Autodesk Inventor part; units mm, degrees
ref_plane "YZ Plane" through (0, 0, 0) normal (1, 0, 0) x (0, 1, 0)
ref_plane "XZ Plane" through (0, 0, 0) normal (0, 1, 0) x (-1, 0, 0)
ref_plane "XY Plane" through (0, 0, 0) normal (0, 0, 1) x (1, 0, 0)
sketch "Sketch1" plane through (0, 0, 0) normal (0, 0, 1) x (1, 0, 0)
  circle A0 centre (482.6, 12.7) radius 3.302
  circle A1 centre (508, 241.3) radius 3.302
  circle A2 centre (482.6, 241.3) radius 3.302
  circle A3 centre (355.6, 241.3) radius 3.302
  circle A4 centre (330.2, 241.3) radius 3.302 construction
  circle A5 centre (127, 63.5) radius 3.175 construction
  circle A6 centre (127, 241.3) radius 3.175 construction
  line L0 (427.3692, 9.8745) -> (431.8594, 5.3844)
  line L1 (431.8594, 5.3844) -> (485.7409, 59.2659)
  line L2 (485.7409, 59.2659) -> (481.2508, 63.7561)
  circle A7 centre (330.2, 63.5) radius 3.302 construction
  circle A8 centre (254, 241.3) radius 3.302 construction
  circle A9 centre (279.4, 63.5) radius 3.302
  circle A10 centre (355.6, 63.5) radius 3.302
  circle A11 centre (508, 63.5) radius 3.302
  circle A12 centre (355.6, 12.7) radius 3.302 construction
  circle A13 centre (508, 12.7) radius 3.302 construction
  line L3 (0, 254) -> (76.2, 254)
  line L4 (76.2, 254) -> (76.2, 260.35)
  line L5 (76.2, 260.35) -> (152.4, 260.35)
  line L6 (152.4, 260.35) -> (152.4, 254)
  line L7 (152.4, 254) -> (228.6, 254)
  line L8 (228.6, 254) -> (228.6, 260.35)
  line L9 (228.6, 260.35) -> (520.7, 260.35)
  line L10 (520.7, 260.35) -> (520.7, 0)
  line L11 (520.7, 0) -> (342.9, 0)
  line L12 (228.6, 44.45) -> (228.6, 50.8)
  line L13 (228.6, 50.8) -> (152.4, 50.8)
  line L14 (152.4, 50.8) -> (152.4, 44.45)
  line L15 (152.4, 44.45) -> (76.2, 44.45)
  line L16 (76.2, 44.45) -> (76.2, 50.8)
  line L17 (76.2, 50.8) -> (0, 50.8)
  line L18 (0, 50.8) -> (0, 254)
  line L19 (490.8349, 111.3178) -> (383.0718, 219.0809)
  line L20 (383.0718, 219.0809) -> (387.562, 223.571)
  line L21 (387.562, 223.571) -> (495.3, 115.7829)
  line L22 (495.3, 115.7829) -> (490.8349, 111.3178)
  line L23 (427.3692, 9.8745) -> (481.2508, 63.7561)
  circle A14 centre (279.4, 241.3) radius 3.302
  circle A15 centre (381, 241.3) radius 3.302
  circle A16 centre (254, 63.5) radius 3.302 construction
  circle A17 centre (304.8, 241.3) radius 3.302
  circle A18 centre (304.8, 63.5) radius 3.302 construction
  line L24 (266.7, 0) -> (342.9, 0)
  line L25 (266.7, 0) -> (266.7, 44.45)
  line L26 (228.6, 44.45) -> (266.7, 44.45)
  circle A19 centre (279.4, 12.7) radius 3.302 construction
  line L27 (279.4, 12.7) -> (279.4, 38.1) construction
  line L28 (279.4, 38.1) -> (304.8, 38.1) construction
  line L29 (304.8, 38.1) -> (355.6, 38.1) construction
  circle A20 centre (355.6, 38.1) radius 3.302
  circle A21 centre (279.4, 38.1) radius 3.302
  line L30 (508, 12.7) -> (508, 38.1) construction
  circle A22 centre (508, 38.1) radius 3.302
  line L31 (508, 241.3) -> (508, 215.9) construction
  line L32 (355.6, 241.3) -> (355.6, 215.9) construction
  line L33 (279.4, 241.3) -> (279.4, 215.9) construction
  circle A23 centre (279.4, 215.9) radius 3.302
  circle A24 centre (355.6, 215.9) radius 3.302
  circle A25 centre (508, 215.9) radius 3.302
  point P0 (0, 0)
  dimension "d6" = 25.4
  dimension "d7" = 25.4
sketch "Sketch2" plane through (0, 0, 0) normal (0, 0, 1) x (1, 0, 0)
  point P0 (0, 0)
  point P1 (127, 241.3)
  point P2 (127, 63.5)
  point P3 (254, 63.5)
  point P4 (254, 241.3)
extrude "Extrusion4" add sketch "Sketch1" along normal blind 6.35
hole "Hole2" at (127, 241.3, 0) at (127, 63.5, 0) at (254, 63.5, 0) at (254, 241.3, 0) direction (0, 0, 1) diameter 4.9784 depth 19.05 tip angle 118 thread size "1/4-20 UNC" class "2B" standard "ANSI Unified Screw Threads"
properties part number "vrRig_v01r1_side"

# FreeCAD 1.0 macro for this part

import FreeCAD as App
import Part
import Sketcher
from FreeCAD import Vector
Q = App.Units.Quantity


def add_polygon(sketch, points):
    """Adds a closed chain of lines whose ends are joined by coincident constraints."""
    first, n = sketch.GeometryCount, len(points)
    for a, b in zip(points, points[1:] + points[:1]):
        sketch.addGeometry(Part.LineSegment(App.Vector(*a, 0), App.Vector(*b, 0)), False)
    for i in range(n):
        sketch.addConstraint(Sketcher.Constraint("Coincident", first + i, 2, first + (i + 1) % n, 1))

doc = App.newDocument("Part")
params = doc.addObject("Spreadsheet::Sheet", "Params")
for row, (alias, value) in enumerate([
    ("sketch1_diameter", "0.26 in"),
    ("sketch1_diameter2", "0.26 in"),
    ("sketch1_diameter3", "0.26 in"),
    ("sketch1_diameter4", "0.26 in"),
    ("sketch1_diameter5", "0.26 in"),
    ("pad1_length", "0.25 in"),
    ("sketch2_diameter", "0.196 in"),
    ("hole_diameter", "0.196 in"),
    ("hole_depth", "0.75 in"),
], start=1):
    params.set(f"A{row}", alias)
    params.set(f"B{row}", "=" + value)
    params.setAlias(f"B{row}", alias)

body = doc.addObject("PartDesign::Body", "Body")

sketch1 = body.newObject("Sketcher::SketchObject", "Sketch")
sketch1.AttachmentSupport = (doc.getObject("XY_Plane"), [""])
sketch1.MapMode = "FlatFace"
add_polygon(sketch1, [(76.2, 254), (0, 254), (0, 50.8), (76.2, 50.8), (76.2, 44.45), (152.4, 44.45), (152.4, 50.8), (228.6, 50.8), (228.6, 44.45), (266.7, 44.45), (266.7, 0), (520.7, 0), (520.7, 260.35), (228.6, 260.35), (228.6, 254), (152.4, 254), (152.4, 260.35), (76.2, 260.35)])
sketch1.addGeometry(Part.Circle(Vector(279.4, 38.1, 0), Vector(0, 0, 1), 3.302), False)
sketch1.addGeometry(Part.Circle(Vector(279.4, 63.5, 0), Vector(0, 0, 1), 3.302), False)
sketch1.addGeometry(Part.Circle(Vector(355.6, 38.1, 0), Vector(0, 0, 1), 3.302), False)
sketch1.addGeometry(Part.Circle(Vector(355.6, 63.5, 0), Vector(0, 0, 1), 3.302), False)
sketch1.addGeometry(Part.Circle(Vector(482.6, 12.7, 0), Vector(0, 0, 1), 3.302), False)
add_polygon(sketch1, [(431.8594, 5.3844), (427.3692, 9.8745), (481.2508, 63.7561), (485.7409, 59.2659)])
sketch1.addGeometry(Part.Circle(Vector(508, 38.1, 0), Vector(0, 0, 1), 3.302), False)
sketch1.addGeometry(Part.Circle(Vector(508, 63.5, 0), Vector(0, 0, 1), 3.302), False)
add_polygon(sketch1, [(495.3, 115.7829), (490.8349, 111.3178), (383.0718, 219.0809), (387.562, 223.571)])
sketch1.addGeometry(Part.Circle(Vector(279.4, 215.9, 0), Vector(0, 0, 1), 3.302), False)
sketch1.addGeometry(Part.Circle(Vector(355.6, 215.9, 0), Vector(0, 0, 1), 3.302), False)
sketch1.addGeometry(Part.Circle(Vector(279.4, 241.3, 0), Vector(0, 0, 1), 3.302), False)
sketch1.addGeometry(Part.Circle(Vector(304.8, 241.3, 0), Vector(0, 0, 1), 3.302), False)
sketch1.addGeometry(Part.Circle(Vector(355.6, 241.3, 0), Vector(0, 0, 1), 3.302), False)
sketch1.addGeometry(Part.Circle(Vector(381, 241.3, 0), Vector(0, 0, 1), 3.302), False)
sketch1.addGeometry(Part.Circle(Vector(508, 215.9, 0), Vector(0, 0, 1), 3.302), False)
sketch1.addGeometry(Part.Circle(Vector(482.6, 241.3, 0), Vector(0, 0, 1), 3.302), False)
sketch1.addGeometry(Part.Circle(Vector(508, 241.3, 0), Vector(0, 0, 1), 3.302), False)
sketch1.addConstraint(Sketcher.Constraint("Horizontal", 0))
sketch1.addConstraint(Sketcher.Constraint("Vertical", 1))
sketch1.addConstraint(Sketcher.Constraint("Horizontal", 2))
sketch1.addConstraint(Sketcher.Constraint("Vertical", 3))
sketch1.addConstraint(Sketcher.Constraint("Horizontal", 4))
sketch1.addConstraint(Sketcher.Constraint("Vertical", 5))
sketch1.addConstraint(Sketcher.Constraint("Horizontal", 6))
sketch1.addConstraint(Sketcher.Constraint("Vertical", 7))
sketch1.addConstraint(Sketcher.Constraint("Horizontal", 8))
sketch1.addConstraint(Sketcher.Constraint("Vertical", 9))
sketch1.addConstraint(Sketcher.Constraint("Horizontal", 10))
sketch1.addConstraint(Sketcher.Constraint("Vertical", 11))
sketch1.addConstraint(Sketcher.Constraint("Horizontal", 12))
sketch1.addConstraint(Sketcher.Constraint("Vertical", 13))
sketch1.addConstraint(Sketcher.Constraint("Horizontal", 14))
sketch1.addConstraint(Sketcher.Constraint("Vertical", 15))
sketch1.addConstraint(Sketcher.Constraint("Horizontal", 16))
sketch1.addConstraint(Sketcher.Constraint("Vertical", 17))
sketch1.addConstraint(Sketcher.Constraint("PointOnObject", 0, 2, -2))
sketch1.addConstraint(Sketcher.Constraint("PointOnObject", 9, 2, -1))
sketch1.addConstraint(Sketcher.Constraint("DistanceY", 18, 3, 19, 3, Q("1 in")))
sketch1.addConstraint(Sketcher.Constraint("DistanceY", 20, 3, 19, 3, Q("1 in")))
sketch1.addConstraint(Sketcher.Constraint("DistanceY", 20, 3, 21, 3, Q("1 in")))
sketch1.addConstraint(Sketcher.Constraint("DistanceY", 22, 3, 20, 3, Q("1 in")))
sketch1.addConstraint(Sketcher.Constraint("DistanceX", 22, 3, 27, 3, Q("1 in")))
sketch1.addConstraint(Sketcher.Constraint("DistanceY", 22, 3, 27, 3, Q("1 in")))
sketch1.addConstraint(Sketcher.Constraint("DistanceY", 27, 3, 28, 3, Q("1 in")))
sketch1.addConstraint(Sketcher.Constraint("DistanceX", 22, 3, 28, 3, Q("1 in")))
sketch1.addConstraint(Sketcher.Constraint("DistanceY", 33, 3, 35, 3, Q("1 in")))
sketch1.addConstraint(Sketcher.Constraint("DistanceY", 34, 3, 35, 3, Q("1 in")))
sketch1.addConstraint(Sketcher.Constraint("DistanceX", 35, 3, 36, 3, Q("1 in")))
sketch1.addConstraint(Sketcher.Constraint("DistanceX", 33, 3, 36, 3, Q("1 in")))
sketch1.addConstraint(Sketcher.Constraint("DistanceY", 33, 3, 36, 3, Q("1 in")))
sketch1.addConstraint(Sketcher.Constraint("DistanceX", 19, 3, 36, 3, Q("1 in")))
sketch1.addConstraint(Sketcher.Constraint("DistanceY", 34, 3, 37, 3, Q("1 in")))
sketch1.addConstraint(Sketcher.Constraint("DistanceX", 37, 3, 38, 3, Q("1 in")))
sketch1.addConstraint(Sketcher.Constraint("DistanceX", 34, 3, 38, 3, Q("1 in")))
sketch1.addConstraint(Sketcher.Constraint("DistanceY", 34, 3, 38, 3, Q("1 in")))
sketch1.addConstraint(Sketcher.Constraint("DistanceY", 39, 3, 38, 3, Q("1 in")))
sketch1.addConstraint(Sketcher.Constraint("DistanceX", 40, 3, 39, 3, Q("1 in")))
sketch1.addConstraint(Sketcher.Constraint("DistanceY", 39, 3, 40, 3, Q("1 in")))
sketch1.addConstraint(Sketcher.Constraint("DistanceX", 40, 3, 41, 3, Q("1 in")))
sketch1.addConstraint(Sketcher.Constraint("DistanceY", 39, 3, 41, 3, Q("1 in")))
sketch1.addConstraint(Sketcher.Constraint("Diameter", 18, Q("0.26 in")))
sketch1.addConstraint(Sketcher.Constraint("Diameter", 19, Q("0.26 in")))
sketch1.addConstraint(Sketcher.Constraint("Diameter", 20, Q("0.26 in")))
sketch1.addConstraint(Sketcher.Constraint("Diameter", 21, Q("0.26 in")))
sketch1.addConstraint(Sketcher.Constraint("Diameter", 22, Q("0.26 in")))
sketch1.addConstraint(Sketcher.Constraint("Diameter", 27, Q("0.26 in")))
sketch1.addConstraint(Sketcher.Constraint("Diameter", 28, Q("0.26 in")))
sketch1.addConstraint(Sketcher.Constraint("Diameter", 33, Q("0.26 in")))
sketch1.addConstraint(Sketcher.Constraint("Diameter", 34, Q("0.26 in")))
sketch1.addConstraint(Sketcher.Constraint("Diameter", 35, Q("0.26 in")))
sketch1.addConstraint(Sketcher.Constraint("Diameter", 36, Q("0.26 in")))
sketch1.addConstraint(Sketcher.Constraint("Diameter", 37, Q("0.26 in")))
sketch1.addConstraint(Sketcher.Constraint("Diameter", 38, Q("0.26 in")))
sketch1.addConstraint(Sketcher.Constraint("Diameter", 39, Q("0.26 in")))
sketch1.addConstraint(Sketcher.Constraint("Diameter", 40, Q("0.26 in")))
sketch1.addConstraint(Sketcher.Constraint("Diameter", 41, Q("0.26 in")))
sketch1.addConstraint(Sketcher.Constraint("DistanceX", 0, 2, 0, 1, Q("3 in")))
sketch1.addConstraint(Sketcher.Constraint("DistanceX", 2, 1, 2, 2, Q("3 in")))
sketch1.addConstraint(Sketcher.Constraint("DistanceX", 4, 1, 4, 2, Q("3 in")))
sketch1.addConstraint(Sketcher.Constraint("DistanceX", 6, 1, 6, 2, Q("3 in")))
sketch1.addConstraint(Sketcher.Constraint("DistanceX", 10, 1, 10, 2, Q("10 in")))
sketch1.addConstraint(Sketcher.Constraint("DistanceX", 14, 2, 14, 1, Q("3 in")))
sketch1.addConstraint(Sketcher.Constraint("DistanceX", 16, 2, 16, 1, Q("3 in")))
sketch1.addConstraint(Sketcher.Constraint("DistanceY", 1, 2, 1, 1, Q("8 in")))
sketch1.addConstraint(Sketcher.Constraint("Distance", 24, Q("3 in")))
sketch1.addConstraint(Sketcher.Constraint("Distance", 26, Q("3 in")))
sketch1.addConstraint(Sketcher.Constraint("Distance", 30, Q("6 in")))
sketch1.addConstraint(Sketcher.Constraint("Distance", 32, Q("6 in")))
sketch1.addConstraint(Sketcher.Constraint("DistanceX", 8, 1, 8, 2, Q("1.5 in")))
sketch1.addConstraint(Sketcher.Constraint("DistanceX", -1, 1, 18, 3, Q("11 in")))
sketch1.addConstraint(Sketcher.Constraint("DistanceX", -1, 1, 19, 3, Q("11 in")))
sketch1.addConstraint(Sketcher.Constraint("DistanceX", -1, 1, 20, 3, Q("14 in")))
sketch1.addConstraint(Sketcher.Constraint("DistanceX", -1, 1, 21, 3, Q("14 in")))
sketch1.addConstraint(Sketcher.Constraint("DistanceX", -1, 1, 22, 3, Q("19 in")))
sketch1.addConstraint(Sketcher.Constraint("DistanceX", -1, 1, 34, 3, Q("14 in")))
sketch1.addConstraint(Sketcher.Constraint("DistanceX", -1, 1, 39, 3, Q("20 in")))
sketch1.addConstraint(Sketcher.Constraint("DistanceY", -1, 1, 0, 2, Q("10 in")))
sketch1.addConstraint(Sketcher.Constraint("DistanceY", -1, 1, 5, 2, Q("2 in")))
sketch1.addConstraint(Sketcher.Constraint("DistanceY", -1, 1, 13, 2, Q("10 in")))
sketch1.addConstraint(Sketcher.Constraint("DistanceY", 19, 3, 33, 3, Q("6 in")))
sketch1.addConstraint(Sketcher.Constraint("DistanceY", 3, 2, 3, 1, Q("0.25 in")))
sketch1.addConstraint(Sketcher.Constraint("DistanceY", 7, 2, 7, 1, Q("0.25 in")))
sketch1.addConstraint(Sketcher.Constraint("DistanceY", 11, 1, 11, 2, Q("10.25 in")))
sketch1.addConstraint(Sketcher.Constraint("DistanceY", 15, 1, 15, 2, Q("0.25 in")))
sketch1.addConstraint(Sketcher.Constraint("DistanceY", -1, 1, 18, 3, Q("1.5 in")))
sketch1.addConstraint(Sketcher.Constraint("DistanceX", -1, 1, 32, 2, Q("19.5 in")))
sketch1.addConstraint(Sketcher.Constraint("Distance", 23, Q("0.25 in")))
sketch1.addConstraint(Sketcher.Constraint("Distance", 25, Q("0.25 in")))
sketch1.addConstraint(Sketcher.Constraint("Distance", 31, Q("0.25 in")))
sketch1.addConstraint(Sketcher.Constraint("DistanceY", -1, 1, 31, 2, Q("8.802 in")))
sketch1.addConstraint(Sketcher.Constraint("Distance", 29, Q("0.2486 in")))
sketch1.addConstraint(Sketcher.Constraint("DistanceY", -1, 1, 25, 2, Q("2.3333 in")))
sketch1.addConstraint(Sketcher.Constraint("DistanceX", -1, 1, 29, 2, Q("19.3242 in")))
sketch1.addConstraint(Sketcher.Constraint("DistanceY", -1, 1, 29, 2, Q("4.3826 in")))
sketch1.addConstraint(Sketcher.Constraint("DistanceY", 26, 2, 24, 2, Q("2.2981 in")))
sketch1.addConstraint(Sketcher.Constraint("DistanceY", 24, 2, 29, 2, Q("1.8725 in")))
sketch1.addConstraint(Sketcher.Constraint("DistanceX", -1, 1, 23, 2, 427.3692))
sketch1.setExpression("Constraints[69]", "Params.sketch1_diameter")
sketch1.setExpression("Constraints[70]", "Params.sketch1_diameter2")
sketch1.setExpression("Constraints[71]", "Params.sketch1_diameter3")
sketch1.setExpression("Constraints[72]", "Params.sketch1_diameter4")
sketch1.setExpression("Constraints[73]", "Params.sketch1_diameter5")
pad1 = body.newObject("PartDesign::Pad", "Pad")
pad1.Profile = sketch1
pad1.setExpression("Length", "Params.pad1_length")

sketch2 = body.newObject("Sketcher::SketchObject", "Sketch001")
sketch2.AttachmentSupport = (doc.getObject("XY_Plane"), [""])
sketch2.MapMode = "FlatFace"
sketch2.addGeometry(Part.Circle(Vector(127, 241.3, 0), Vector(0, 0, 1), 2.5), False)
sketch2.addGeometry(Part.Circle(Vector(127, 63.5, 0), Vector(0, 0, 1), 2.5), False)
sketch2.addGeometry(Part.Circle(Vector(254, 63.5, 0), Vector(0, 0, 1), 2.5), False)
sketch2.addGeometry(Part.Circle(Vector(254, 241.3, 0), Vector(0, 0, 1), 2.5), False)
sketch2.addConstraint(Sketcher.Constraint("Equal", 0, 1))
sketch2.addConstraint(Sketcher.Constraint("Equal", 1, 2))
sketch2.addConstraint(Sketcher.Constraint("Equal", 2, 3))
sketch2.addConstraint(Sketcher.Constraint("Horizontal", 1, 3, 2, 3))
sketch2.addConstraint(Sketcher.Constraint("Horizontal", 0, 3, 3, 3))
sketch2.addConstraint(Sketcher.Constraint("Vertical", 0, 3, 1, 3))
sketch2.addConstraint(Sketcher.Constraint("Vertical", 2, 3, 3, 3))
sketch2.addConstraint(Sketcher.Constraint("Diameter", 0, Q("0.196 in")))
sketch2.addConstraint(Sketcher.Constraint("DistanceX", -1, 1, 0, 3, Q("5 in")))
sketch2.addConstraint(Sketcher.Constraint("DistanceX", -1, 1, 2, 3, Q("10 in")))
sketch2.addConstraint(Sketcher.Constraint("DistanceY", 1, 3, 0, 3, Q("7 in")))
sketch2.addConstraint(Sketcher.Constraint("DistanceY", -1, 1, 0, 3, Q("9.5 in")))
sketch2.setExpression("Constraints[7]", "Params.sketch2_diameter")
doc.recompute()
hole = body.newObject("PartDesign::Hole", "Hole")
hole.Profile = sketch2
hole.ThreadType = "None"
hole.setExpression("Diameter", "Params.hole_diameter")
hole.DepthType = "Dimension"
hole.setExpression("Depth", "Params.hole_depth")
hole.DrillPoint = "Angled"
hole.DrillPointAngle = 118
hole.Reversed = True

doc.recompute()
